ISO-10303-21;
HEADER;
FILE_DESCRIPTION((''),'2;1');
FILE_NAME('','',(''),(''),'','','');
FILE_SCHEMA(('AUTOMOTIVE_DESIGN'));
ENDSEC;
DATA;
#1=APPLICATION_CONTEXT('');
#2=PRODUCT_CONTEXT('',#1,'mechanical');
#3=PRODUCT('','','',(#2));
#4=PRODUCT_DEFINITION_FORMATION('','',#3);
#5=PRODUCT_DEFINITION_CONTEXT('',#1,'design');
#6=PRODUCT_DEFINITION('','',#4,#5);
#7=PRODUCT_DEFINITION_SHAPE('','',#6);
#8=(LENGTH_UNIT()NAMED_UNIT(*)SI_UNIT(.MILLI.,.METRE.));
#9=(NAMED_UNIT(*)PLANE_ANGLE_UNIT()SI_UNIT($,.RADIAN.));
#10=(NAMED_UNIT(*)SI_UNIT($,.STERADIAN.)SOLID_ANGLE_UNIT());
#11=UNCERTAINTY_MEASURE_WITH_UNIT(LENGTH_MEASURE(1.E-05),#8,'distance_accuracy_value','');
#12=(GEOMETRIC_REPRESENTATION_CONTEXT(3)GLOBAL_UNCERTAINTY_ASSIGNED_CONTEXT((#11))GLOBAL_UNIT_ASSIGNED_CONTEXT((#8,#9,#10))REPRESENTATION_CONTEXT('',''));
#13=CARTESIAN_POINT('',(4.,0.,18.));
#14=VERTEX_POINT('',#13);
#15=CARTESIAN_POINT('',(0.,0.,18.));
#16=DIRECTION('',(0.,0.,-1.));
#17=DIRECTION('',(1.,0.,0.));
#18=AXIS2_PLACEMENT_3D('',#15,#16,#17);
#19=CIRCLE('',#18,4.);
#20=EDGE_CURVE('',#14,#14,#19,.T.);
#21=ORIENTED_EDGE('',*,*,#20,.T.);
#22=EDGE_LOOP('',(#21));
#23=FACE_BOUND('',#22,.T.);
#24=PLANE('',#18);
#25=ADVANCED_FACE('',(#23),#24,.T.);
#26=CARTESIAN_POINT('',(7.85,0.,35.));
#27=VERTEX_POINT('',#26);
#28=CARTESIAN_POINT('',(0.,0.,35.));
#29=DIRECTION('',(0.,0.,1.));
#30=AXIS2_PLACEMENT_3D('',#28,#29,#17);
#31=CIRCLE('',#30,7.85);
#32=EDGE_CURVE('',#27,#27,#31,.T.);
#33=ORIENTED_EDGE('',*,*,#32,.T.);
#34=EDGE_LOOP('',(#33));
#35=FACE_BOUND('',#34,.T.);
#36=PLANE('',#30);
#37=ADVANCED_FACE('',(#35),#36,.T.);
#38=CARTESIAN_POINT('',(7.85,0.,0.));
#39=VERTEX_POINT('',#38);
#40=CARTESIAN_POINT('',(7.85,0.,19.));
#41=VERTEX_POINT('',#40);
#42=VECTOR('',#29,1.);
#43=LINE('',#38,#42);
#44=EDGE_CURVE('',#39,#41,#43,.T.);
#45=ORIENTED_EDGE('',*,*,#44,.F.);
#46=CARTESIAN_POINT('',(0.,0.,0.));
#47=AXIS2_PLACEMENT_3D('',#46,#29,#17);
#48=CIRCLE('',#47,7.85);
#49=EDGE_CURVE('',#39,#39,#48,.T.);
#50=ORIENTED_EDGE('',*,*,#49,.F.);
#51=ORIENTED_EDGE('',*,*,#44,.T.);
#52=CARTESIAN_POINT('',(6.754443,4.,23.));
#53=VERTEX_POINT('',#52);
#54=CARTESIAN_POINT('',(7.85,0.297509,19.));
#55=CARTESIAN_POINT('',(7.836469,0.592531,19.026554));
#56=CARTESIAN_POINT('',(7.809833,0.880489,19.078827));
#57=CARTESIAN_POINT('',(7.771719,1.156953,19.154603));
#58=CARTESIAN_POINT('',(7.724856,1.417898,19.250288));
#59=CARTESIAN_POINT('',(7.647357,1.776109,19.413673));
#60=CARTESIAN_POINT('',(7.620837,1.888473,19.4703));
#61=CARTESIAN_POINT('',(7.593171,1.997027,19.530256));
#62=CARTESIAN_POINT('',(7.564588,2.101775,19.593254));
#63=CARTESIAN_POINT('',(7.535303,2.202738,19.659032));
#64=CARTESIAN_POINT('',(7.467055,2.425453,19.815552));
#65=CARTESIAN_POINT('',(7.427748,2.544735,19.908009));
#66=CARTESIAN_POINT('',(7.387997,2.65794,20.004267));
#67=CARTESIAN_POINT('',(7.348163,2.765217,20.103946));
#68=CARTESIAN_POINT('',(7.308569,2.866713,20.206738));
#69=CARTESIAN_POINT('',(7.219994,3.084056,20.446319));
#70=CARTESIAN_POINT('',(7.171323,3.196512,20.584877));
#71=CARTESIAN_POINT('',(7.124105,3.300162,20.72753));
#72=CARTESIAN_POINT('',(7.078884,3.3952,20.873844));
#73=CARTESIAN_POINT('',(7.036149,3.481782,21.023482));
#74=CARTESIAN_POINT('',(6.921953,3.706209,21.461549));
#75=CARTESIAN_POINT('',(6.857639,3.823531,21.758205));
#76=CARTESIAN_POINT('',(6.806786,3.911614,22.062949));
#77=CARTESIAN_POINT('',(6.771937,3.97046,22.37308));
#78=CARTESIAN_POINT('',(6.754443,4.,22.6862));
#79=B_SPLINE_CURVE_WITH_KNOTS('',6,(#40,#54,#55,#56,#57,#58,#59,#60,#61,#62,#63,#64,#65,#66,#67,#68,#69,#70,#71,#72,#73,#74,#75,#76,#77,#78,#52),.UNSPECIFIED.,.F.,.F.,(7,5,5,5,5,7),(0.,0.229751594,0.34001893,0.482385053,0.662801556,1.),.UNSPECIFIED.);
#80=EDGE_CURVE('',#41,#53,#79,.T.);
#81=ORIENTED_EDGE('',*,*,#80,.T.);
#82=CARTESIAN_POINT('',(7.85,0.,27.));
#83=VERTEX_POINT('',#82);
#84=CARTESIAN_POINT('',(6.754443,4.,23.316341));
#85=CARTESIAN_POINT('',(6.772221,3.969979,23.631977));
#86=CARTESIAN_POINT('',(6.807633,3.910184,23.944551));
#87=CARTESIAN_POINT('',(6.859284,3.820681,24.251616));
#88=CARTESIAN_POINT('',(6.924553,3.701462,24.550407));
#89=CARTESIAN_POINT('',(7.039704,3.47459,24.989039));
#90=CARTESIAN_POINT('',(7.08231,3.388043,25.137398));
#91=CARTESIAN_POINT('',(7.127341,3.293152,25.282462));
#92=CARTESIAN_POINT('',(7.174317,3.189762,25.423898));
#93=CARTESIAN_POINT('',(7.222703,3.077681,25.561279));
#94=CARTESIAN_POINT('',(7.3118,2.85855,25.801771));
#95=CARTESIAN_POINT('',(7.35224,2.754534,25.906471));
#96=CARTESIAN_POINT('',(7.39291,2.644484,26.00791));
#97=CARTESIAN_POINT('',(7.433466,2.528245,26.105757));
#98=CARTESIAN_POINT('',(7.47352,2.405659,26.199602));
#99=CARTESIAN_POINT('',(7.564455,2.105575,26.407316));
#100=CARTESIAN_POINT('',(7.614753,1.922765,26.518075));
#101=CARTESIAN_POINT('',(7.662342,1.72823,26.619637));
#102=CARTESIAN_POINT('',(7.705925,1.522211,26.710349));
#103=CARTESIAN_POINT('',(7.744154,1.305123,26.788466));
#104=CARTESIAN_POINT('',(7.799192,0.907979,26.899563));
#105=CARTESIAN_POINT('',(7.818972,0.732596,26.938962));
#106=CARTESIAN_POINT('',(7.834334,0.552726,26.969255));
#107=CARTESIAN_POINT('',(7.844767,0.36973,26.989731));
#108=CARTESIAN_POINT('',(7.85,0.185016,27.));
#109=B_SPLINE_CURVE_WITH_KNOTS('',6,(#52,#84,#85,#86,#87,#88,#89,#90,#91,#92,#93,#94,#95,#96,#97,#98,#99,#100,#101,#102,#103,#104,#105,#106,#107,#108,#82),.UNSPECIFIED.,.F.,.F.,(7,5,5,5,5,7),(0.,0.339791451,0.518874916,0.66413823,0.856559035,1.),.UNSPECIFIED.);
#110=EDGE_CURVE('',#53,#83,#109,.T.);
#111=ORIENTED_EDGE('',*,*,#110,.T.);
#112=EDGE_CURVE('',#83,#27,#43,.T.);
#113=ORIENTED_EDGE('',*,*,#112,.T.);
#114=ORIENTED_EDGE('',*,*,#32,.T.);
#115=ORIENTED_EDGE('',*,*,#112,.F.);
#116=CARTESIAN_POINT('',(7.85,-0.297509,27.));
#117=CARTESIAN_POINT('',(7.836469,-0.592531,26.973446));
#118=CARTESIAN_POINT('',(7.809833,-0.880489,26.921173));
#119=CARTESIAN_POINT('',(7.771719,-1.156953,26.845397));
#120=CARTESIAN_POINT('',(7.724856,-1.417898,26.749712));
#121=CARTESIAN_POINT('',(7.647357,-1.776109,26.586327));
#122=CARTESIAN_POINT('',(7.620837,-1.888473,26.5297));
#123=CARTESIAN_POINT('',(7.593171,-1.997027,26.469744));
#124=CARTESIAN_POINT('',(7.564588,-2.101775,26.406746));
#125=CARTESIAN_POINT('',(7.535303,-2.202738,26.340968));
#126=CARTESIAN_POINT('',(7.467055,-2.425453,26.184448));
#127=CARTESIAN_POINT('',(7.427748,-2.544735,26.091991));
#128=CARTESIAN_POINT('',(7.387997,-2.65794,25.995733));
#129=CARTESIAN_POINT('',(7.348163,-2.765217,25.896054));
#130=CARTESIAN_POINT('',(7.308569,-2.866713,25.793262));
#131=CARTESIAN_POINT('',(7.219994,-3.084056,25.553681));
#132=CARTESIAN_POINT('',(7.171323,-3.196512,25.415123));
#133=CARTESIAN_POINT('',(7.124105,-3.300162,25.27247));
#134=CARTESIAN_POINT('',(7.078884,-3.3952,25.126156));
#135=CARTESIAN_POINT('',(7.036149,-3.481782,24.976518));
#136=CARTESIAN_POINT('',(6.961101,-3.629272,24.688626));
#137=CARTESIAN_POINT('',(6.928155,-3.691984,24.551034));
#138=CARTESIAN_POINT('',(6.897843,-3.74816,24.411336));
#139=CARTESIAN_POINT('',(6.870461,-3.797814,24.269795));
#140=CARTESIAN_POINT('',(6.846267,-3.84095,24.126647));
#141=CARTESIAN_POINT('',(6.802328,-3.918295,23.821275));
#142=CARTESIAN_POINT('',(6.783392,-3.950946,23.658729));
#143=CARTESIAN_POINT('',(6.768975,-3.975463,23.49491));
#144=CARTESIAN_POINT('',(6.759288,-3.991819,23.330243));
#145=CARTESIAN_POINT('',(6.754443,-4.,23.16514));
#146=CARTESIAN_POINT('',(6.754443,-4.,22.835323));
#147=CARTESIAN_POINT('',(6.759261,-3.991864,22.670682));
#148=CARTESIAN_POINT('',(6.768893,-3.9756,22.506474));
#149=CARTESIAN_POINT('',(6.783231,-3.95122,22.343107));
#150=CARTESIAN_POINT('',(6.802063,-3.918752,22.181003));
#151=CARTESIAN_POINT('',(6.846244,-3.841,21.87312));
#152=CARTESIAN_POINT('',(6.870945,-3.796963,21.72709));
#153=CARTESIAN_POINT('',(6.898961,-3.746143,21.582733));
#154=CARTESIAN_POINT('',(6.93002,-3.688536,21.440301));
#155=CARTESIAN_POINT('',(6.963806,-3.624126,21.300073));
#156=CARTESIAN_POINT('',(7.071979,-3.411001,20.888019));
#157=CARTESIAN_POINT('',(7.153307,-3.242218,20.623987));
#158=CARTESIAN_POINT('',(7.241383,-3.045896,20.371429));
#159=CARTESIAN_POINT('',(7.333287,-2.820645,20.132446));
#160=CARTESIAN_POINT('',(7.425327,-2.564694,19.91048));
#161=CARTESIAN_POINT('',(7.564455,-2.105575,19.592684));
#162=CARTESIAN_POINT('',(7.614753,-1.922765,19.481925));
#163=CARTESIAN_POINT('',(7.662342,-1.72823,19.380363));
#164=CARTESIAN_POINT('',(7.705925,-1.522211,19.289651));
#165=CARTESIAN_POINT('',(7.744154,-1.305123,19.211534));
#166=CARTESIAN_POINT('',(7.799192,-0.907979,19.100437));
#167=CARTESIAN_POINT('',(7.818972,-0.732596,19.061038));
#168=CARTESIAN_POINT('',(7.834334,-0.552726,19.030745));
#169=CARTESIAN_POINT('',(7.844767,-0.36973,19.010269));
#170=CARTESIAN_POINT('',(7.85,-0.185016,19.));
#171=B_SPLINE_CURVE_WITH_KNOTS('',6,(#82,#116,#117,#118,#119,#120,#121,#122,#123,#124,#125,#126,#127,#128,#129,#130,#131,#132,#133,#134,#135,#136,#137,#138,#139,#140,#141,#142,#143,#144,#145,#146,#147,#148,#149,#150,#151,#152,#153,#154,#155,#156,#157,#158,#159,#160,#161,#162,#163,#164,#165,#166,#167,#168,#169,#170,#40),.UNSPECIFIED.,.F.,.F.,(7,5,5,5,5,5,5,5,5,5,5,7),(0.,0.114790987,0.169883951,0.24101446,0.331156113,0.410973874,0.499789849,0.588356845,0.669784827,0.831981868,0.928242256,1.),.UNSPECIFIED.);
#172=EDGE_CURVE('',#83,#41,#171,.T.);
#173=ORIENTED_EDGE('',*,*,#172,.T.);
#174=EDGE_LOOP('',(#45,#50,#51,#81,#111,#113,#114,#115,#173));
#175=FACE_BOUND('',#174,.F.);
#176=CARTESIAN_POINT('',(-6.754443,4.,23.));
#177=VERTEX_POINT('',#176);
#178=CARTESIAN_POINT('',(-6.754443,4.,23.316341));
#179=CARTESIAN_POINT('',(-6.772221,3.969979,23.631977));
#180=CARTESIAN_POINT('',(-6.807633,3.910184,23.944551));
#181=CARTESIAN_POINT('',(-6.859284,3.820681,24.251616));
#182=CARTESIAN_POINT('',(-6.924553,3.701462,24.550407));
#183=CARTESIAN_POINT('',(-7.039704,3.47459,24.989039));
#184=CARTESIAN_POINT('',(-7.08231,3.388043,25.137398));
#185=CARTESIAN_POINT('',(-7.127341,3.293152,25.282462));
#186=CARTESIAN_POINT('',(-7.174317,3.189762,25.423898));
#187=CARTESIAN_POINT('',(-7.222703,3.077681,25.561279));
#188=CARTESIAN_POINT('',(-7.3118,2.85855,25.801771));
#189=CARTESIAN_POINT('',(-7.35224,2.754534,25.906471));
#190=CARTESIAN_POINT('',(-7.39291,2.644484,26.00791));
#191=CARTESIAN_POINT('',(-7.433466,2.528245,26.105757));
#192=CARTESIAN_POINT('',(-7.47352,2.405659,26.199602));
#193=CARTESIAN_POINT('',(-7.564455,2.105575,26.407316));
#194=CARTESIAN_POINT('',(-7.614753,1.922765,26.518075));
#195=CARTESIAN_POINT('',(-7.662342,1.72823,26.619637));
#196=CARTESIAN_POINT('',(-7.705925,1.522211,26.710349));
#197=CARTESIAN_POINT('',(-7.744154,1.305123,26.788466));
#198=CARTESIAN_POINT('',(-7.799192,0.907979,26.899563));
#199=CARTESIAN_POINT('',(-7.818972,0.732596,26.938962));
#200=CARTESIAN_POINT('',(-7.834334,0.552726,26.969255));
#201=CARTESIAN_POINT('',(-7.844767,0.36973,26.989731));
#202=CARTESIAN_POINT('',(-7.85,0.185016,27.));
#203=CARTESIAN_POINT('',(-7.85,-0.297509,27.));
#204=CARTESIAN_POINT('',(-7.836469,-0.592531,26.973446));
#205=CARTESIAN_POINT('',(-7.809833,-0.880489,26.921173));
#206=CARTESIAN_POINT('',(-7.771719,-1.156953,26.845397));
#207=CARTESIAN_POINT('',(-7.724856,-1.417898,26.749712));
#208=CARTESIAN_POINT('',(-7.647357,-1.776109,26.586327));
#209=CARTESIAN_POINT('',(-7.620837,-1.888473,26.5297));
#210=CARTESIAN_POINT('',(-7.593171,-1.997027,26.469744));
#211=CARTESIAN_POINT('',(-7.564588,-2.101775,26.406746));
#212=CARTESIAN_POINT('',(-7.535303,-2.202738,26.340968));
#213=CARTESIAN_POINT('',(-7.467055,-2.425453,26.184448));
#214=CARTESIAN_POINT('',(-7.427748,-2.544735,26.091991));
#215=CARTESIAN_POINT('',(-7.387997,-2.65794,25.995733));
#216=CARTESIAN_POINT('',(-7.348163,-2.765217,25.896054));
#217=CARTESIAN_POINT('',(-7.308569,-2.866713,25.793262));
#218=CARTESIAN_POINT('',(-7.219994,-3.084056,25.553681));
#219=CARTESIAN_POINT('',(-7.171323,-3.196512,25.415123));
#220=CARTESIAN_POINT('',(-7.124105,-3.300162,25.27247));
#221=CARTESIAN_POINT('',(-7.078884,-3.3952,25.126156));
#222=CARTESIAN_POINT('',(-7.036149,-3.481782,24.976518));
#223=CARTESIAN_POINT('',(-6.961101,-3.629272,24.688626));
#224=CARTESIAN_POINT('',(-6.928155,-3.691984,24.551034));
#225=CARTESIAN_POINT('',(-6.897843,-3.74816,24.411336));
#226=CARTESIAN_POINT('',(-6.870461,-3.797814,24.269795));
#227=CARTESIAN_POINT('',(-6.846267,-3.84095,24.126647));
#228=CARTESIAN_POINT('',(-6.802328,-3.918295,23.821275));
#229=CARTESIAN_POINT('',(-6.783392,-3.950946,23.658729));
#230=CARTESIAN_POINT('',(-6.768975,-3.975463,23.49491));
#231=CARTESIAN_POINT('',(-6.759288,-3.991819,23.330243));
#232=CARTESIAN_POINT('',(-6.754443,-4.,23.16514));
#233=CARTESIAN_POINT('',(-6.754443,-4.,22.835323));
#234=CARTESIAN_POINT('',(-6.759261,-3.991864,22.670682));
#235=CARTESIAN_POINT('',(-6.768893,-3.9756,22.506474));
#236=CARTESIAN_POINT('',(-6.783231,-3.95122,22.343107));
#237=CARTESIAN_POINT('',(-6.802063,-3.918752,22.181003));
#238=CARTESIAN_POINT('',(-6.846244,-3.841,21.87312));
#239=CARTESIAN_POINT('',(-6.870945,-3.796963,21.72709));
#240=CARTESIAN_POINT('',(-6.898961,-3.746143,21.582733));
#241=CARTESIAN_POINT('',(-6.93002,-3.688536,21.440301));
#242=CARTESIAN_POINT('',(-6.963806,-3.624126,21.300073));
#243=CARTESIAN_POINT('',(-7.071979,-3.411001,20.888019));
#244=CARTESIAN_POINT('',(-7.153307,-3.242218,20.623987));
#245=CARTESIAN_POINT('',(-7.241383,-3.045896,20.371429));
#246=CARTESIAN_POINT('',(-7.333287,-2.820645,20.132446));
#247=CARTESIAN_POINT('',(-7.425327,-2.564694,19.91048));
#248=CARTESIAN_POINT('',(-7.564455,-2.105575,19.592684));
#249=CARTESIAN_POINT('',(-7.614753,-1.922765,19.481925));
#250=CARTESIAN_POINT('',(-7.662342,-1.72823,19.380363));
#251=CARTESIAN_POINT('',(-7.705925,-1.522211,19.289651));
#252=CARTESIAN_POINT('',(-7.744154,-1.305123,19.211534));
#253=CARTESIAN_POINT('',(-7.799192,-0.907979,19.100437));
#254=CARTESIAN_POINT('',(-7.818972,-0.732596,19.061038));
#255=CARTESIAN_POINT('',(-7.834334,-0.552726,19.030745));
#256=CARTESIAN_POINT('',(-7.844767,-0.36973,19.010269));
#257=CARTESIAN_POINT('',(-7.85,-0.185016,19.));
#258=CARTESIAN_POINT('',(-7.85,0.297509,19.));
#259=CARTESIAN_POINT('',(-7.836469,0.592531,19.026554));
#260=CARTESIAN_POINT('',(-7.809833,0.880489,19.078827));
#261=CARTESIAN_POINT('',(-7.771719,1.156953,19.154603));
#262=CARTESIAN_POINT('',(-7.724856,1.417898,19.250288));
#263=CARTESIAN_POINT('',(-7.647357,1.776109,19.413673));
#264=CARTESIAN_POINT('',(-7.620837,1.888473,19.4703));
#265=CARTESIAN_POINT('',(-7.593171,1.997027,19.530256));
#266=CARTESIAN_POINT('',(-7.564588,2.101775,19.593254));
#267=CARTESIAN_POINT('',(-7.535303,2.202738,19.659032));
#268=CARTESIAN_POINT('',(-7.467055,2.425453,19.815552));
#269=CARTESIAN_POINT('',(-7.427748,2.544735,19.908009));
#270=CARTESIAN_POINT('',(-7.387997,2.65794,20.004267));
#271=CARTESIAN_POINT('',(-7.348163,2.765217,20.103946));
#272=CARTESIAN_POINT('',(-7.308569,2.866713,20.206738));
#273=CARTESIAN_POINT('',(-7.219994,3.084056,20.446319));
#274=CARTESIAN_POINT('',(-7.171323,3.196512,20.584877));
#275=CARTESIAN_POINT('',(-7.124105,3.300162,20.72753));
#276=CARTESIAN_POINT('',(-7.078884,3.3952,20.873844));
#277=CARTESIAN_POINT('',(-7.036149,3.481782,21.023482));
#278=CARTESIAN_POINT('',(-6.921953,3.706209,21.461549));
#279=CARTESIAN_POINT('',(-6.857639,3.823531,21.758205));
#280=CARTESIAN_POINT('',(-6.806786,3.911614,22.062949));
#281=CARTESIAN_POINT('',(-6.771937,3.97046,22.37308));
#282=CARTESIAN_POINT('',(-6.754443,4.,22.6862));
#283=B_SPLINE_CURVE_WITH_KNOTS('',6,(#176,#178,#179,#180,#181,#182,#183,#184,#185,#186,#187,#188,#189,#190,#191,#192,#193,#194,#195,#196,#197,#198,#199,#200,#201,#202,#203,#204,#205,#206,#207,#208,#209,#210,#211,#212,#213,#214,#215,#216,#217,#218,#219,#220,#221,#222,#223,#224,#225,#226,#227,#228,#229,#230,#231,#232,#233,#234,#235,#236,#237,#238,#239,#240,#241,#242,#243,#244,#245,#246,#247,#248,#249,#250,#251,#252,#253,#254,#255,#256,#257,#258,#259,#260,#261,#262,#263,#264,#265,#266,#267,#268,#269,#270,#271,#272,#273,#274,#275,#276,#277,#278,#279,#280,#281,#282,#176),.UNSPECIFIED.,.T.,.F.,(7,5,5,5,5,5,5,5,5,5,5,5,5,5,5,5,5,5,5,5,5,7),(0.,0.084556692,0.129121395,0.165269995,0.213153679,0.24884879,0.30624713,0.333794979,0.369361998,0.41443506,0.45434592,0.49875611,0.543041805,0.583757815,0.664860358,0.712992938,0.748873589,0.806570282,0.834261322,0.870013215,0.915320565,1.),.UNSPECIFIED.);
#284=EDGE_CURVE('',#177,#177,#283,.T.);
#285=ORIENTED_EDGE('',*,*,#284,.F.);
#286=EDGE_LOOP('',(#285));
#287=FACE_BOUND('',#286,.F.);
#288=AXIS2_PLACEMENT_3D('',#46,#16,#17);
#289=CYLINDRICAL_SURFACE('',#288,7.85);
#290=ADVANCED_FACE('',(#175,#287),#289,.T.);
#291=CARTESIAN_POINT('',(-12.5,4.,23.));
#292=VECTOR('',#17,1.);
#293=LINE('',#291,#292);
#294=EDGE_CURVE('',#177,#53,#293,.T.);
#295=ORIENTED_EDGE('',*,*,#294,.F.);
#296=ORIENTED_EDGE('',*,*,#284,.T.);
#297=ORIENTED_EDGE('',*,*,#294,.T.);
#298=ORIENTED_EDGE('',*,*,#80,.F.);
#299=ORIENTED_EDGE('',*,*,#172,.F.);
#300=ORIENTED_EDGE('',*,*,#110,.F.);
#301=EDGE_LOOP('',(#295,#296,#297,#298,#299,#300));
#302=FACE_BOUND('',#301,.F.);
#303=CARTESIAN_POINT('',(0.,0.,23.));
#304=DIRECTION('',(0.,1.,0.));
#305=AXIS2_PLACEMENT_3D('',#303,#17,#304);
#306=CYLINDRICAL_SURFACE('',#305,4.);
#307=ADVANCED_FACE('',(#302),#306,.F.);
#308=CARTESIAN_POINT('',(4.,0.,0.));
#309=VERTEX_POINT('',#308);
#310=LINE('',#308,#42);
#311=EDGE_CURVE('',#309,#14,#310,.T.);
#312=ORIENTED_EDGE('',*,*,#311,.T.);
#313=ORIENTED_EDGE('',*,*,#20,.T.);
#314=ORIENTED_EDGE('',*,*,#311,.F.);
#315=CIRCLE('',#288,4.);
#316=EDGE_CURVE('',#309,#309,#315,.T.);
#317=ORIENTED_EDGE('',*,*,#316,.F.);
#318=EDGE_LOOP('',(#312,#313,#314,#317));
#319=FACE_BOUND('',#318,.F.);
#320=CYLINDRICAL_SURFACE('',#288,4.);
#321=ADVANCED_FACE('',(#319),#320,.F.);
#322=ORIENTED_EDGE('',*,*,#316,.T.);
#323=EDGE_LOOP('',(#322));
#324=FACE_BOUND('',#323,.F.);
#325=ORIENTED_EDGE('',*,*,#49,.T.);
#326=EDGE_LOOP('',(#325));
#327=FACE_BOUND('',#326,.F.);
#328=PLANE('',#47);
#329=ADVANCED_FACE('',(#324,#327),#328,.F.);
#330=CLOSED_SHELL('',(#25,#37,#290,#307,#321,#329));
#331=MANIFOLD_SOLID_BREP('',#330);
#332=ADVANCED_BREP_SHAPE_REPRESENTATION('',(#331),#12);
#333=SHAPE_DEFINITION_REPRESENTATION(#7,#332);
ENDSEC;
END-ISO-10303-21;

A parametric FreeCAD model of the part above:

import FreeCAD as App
import Part
import Sketcher

V = App.Vector
Q = App.Units.Quantity

doc = App.newDocument("Part")
body = doc.addObject("PartDesign::Body", "Body")

# Sketch on XY plane
sketch1 = doc.addObject("Sketcher::SketchObject", "Sketch")
body.addObject(sketch1)
sketch1.AttachmentSupport = (doc.XY_Plane, [""])
sketch1.MapMode = "FlatFace"
sketch1.addGeometry(Part.Circle(V(0, 0, 0), V(0, 0, 1), 8), False)
sketch1.addConstraint([
    Sketcher.Constraint("Coincident", 0, 3, -1, 1),
    Sketcher.Constraint("Diameter", 0, Q("15.7 mm")),
])
pad1 = doc.addObject("PartDesign::Pad", "Pad")
body.addObject(pad1)
pad1.Profile = sketch1
pad1.Length = 35

# Sketch on YZ plane
sketch2 = doc.addObject("Sketcher::SketchObject", "Sketch001")
body.addObject(sketch2)
sketch2.AttachmentSupport = (doc.YZ_Plane, [""])
sketch2.MapMode = "FlatFace"
sketch2.addGeometry(Part.Circle(V(0, 23, 0), V(0, 0, 1), 4), False)
sketch2.addConstraint([
    Sketcher.Constraint("PointOnObject", 0, 3, -2),
    Sketcher.Constraint("Diameter", 0, Q("8 mm")),
    Sketcher.Constraint("DistanceY", -1, 1, 0, 3, Q("23 mm")),
])
pocket1 = doc.addObject("PartDesign::Pocket", "Pocket")
body.addObject(pocket1)
pocket1.Profile = sketch2
pocket1.Length = 25
pocket1.Midplane = True

# Sketch on XY plane
sketch3 = doc.addObject("Sketcher::SketchObject", "Sketch002")
body.addObject(sketch3)
sketch3.AttachmentSupport = (doc.XY_Plane, [""])
sketch3.MapMode = "FlatFace"
sketch3.addGeometry(Part.Circle(V(0, 0, 0), V(0, 0, 1), 4), False)
sketch3.addConstraint([
    Sketcher.Constraint("Coincident", 0, 3, -1, 1),
    Sketcher.Constraint("Diameter", 0, Q("8 mm")),
])
pocket2 = doc.addObject("PartDesign::Pocket", "Pocket001")
body.addObject(pocket2)
pocket2.Profile = sketch3
pocket2.Length = 18
pocket2.Reversed = True

doc.recompute()
